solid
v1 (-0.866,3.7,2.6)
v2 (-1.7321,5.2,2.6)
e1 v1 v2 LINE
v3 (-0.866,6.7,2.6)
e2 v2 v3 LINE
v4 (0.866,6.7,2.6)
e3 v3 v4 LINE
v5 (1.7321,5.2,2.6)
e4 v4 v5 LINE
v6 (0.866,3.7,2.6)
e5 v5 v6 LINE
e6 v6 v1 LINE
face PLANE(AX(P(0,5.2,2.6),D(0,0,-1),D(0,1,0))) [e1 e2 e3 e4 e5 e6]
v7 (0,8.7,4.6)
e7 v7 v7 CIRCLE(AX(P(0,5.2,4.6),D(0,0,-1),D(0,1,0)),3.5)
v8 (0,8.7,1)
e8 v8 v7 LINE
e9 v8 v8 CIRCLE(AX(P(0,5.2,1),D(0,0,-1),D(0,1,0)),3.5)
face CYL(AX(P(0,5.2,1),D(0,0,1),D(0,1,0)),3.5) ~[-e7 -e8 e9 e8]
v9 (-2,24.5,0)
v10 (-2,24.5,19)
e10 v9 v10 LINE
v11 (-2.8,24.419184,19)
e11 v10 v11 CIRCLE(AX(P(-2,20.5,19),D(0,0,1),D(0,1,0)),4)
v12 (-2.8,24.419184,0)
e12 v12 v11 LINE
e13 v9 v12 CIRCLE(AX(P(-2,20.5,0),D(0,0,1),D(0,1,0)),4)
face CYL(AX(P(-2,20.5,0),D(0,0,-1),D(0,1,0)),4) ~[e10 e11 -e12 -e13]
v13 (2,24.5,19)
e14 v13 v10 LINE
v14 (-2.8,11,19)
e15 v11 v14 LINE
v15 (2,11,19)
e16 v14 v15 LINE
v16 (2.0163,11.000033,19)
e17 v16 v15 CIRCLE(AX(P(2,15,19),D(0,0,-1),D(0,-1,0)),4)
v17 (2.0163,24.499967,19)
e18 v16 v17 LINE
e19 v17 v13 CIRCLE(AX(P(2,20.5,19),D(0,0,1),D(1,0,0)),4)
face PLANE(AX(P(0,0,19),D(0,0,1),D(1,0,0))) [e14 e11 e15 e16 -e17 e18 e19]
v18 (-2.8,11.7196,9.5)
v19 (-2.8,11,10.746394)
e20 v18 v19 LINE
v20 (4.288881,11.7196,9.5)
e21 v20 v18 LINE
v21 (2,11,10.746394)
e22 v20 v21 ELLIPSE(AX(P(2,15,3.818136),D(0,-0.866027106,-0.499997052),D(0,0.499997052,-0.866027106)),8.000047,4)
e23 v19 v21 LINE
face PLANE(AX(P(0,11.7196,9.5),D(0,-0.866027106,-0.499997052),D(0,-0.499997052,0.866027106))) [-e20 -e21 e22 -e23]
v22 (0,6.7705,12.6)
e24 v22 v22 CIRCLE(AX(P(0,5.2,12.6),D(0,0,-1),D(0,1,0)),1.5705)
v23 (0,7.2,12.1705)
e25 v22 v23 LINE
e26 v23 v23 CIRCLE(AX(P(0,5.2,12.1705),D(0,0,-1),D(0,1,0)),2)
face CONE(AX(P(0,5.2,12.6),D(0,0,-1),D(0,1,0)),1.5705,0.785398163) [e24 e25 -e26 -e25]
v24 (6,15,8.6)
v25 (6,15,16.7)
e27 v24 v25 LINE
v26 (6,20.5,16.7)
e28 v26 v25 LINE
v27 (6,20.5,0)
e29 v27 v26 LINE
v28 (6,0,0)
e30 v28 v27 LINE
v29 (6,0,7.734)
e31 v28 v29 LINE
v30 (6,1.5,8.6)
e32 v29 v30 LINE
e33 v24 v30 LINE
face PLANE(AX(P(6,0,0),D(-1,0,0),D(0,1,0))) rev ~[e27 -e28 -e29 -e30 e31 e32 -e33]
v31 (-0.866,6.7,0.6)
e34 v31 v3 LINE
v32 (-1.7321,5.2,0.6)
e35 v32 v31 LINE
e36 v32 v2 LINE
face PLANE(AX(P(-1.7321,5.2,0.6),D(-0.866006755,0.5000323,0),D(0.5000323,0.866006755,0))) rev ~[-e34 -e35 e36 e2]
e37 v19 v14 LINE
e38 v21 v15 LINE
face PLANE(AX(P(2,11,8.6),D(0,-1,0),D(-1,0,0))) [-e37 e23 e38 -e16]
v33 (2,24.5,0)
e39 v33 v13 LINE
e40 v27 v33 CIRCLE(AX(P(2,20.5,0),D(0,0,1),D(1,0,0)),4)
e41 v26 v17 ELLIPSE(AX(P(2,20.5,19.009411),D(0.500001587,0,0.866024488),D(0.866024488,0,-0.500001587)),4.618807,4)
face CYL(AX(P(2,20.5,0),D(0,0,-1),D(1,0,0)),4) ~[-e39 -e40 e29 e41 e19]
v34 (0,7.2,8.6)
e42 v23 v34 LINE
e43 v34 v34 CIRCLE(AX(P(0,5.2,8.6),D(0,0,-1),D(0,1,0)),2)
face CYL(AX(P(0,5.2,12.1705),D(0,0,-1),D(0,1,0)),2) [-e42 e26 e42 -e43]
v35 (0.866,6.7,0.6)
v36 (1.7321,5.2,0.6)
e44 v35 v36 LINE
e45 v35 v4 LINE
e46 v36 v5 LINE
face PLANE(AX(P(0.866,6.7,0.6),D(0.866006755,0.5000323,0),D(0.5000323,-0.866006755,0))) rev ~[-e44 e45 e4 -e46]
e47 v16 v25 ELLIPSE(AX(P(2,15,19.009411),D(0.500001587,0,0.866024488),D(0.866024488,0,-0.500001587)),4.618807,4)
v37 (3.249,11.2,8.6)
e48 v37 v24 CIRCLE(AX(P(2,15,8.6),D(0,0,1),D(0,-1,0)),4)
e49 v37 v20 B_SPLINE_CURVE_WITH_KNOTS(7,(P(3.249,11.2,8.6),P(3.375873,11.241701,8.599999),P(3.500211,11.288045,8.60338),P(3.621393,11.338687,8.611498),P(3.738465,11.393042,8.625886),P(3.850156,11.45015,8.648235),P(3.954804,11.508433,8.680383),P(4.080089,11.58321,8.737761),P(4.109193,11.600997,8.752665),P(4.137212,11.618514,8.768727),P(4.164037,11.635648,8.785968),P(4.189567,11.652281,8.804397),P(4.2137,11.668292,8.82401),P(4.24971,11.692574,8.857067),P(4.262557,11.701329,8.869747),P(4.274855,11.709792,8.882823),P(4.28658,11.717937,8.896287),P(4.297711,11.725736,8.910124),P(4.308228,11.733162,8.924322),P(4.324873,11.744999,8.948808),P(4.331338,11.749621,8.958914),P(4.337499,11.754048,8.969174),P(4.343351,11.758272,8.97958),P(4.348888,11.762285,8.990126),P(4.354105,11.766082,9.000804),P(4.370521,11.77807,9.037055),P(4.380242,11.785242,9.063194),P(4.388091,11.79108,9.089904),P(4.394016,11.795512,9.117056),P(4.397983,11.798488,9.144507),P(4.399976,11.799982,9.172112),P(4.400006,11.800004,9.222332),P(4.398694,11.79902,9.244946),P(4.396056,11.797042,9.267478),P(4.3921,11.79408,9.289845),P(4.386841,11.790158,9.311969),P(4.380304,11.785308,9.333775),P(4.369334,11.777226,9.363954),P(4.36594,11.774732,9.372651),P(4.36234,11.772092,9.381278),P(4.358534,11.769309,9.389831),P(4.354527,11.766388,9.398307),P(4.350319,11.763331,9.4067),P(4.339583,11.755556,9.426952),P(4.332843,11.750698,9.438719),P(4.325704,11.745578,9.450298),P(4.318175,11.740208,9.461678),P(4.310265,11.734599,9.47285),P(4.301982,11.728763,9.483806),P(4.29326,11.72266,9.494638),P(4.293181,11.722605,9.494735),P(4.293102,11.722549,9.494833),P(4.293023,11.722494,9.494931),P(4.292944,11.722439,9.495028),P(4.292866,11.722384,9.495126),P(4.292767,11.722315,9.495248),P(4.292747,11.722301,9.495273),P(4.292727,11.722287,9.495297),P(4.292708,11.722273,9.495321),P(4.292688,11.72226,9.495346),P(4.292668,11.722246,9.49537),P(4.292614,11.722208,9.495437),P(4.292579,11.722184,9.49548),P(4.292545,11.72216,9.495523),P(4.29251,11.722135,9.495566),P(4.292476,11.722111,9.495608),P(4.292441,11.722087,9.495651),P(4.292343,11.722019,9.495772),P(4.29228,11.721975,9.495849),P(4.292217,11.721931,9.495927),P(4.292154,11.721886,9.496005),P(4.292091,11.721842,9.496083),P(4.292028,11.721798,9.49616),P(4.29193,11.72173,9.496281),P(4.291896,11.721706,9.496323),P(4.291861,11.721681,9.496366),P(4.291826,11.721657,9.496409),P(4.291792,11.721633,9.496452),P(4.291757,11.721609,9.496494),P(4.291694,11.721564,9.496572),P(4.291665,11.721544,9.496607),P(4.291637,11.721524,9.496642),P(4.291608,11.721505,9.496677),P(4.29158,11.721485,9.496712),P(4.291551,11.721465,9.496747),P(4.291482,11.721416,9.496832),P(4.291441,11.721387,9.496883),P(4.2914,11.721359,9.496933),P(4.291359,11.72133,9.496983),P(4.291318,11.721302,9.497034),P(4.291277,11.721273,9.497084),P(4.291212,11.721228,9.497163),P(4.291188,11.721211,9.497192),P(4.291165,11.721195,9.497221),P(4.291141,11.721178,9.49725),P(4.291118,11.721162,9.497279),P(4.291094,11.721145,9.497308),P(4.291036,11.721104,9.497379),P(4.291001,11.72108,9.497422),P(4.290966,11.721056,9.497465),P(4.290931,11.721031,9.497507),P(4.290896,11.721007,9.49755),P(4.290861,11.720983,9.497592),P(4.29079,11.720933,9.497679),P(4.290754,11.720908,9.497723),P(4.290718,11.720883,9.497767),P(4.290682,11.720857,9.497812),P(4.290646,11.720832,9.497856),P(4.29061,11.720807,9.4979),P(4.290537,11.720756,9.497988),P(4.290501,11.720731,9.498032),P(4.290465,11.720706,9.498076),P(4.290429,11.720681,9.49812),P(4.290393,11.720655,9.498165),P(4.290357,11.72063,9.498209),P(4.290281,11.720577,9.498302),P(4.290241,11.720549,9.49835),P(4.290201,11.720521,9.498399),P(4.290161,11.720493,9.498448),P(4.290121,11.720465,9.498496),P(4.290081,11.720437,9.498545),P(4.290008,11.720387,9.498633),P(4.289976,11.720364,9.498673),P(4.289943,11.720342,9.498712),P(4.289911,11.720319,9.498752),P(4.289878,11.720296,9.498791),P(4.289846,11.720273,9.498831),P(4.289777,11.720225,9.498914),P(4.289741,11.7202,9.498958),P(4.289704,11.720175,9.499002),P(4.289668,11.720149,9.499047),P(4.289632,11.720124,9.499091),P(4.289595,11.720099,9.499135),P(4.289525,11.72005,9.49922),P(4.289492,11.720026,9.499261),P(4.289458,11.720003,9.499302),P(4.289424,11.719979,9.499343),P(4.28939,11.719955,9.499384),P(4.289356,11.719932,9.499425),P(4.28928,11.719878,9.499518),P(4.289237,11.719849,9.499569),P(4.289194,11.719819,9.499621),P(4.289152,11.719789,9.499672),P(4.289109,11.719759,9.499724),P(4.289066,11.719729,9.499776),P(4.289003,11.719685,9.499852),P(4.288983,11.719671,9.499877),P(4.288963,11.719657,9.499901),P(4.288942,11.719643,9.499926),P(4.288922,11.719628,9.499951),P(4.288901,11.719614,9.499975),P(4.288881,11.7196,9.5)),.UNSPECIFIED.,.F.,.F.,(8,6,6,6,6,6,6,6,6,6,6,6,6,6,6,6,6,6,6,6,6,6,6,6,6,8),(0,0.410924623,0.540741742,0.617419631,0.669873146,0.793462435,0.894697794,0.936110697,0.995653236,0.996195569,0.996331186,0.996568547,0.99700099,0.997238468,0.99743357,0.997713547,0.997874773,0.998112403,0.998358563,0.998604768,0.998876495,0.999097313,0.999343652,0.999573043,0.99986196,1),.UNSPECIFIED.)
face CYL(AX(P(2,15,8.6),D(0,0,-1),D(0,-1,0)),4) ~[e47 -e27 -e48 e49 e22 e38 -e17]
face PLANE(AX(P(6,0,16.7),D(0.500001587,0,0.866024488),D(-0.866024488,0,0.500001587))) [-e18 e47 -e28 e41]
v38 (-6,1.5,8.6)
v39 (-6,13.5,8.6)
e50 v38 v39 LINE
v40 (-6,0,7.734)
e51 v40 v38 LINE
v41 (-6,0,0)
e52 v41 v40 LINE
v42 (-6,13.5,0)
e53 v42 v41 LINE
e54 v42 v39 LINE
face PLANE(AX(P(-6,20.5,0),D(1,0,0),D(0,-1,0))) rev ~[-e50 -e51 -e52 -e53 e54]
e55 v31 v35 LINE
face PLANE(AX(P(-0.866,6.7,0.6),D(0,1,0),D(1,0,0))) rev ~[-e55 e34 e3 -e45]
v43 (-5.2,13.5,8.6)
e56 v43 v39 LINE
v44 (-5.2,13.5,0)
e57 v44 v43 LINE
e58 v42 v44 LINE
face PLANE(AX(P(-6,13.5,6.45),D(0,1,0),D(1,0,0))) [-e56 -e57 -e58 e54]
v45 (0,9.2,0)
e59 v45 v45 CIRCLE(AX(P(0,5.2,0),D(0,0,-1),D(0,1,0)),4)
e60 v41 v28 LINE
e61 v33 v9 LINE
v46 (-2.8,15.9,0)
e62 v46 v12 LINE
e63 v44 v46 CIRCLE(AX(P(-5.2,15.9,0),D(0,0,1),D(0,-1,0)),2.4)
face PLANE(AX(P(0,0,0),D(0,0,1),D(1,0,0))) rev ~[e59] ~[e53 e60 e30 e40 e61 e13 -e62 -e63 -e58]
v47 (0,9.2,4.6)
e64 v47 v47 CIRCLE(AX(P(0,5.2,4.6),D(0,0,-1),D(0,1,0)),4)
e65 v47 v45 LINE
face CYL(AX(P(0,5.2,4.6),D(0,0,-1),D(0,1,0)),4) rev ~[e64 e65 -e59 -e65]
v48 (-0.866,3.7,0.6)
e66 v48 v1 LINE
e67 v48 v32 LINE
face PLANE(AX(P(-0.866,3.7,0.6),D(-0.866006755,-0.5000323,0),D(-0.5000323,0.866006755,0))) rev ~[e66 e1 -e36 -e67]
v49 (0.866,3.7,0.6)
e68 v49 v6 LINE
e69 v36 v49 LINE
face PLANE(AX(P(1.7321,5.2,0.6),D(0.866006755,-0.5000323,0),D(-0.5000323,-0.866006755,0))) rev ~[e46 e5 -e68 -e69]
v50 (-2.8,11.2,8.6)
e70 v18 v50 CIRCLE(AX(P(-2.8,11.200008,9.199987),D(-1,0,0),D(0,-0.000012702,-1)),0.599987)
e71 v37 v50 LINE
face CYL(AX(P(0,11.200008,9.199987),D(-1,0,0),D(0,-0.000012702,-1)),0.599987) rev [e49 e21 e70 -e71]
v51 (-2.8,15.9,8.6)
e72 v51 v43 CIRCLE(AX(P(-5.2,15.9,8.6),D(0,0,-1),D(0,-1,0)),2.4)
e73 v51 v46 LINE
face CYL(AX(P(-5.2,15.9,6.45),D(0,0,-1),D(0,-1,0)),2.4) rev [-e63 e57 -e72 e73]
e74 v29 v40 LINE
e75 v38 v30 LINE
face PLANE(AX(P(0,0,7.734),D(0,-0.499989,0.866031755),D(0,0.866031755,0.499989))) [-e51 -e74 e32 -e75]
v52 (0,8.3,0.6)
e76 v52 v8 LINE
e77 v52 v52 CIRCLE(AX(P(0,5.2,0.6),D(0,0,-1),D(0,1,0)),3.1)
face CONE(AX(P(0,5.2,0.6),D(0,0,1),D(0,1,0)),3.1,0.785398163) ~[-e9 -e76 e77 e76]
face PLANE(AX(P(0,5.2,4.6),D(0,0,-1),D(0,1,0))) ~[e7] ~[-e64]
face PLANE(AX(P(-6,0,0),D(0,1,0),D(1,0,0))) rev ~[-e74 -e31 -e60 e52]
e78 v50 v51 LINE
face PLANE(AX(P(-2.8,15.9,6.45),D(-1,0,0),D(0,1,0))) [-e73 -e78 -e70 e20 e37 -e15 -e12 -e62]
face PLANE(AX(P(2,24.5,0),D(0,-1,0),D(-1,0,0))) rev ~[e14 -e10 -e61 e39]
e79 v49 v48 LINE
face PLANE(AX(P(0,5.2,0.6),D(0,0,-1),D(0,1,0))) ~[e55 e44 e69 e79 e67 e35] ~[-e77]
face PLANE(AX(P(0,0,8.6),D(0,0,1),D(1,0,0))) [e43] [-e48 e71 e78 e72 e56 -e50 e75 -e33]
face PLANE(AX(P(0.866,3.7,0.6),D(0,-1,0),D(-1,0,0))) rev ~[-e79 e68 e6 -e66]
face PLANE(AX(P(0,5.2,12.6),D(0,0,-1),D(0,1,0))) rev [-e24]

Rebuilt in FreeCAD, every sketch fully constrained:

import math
import FreeCAD as App
import Part
import Sketcher

V = App.Vector
Q = App.Units.Quantity


def add_polygon(sketch, points):
    """Adds a closed chain of lines whose ends are joined by coincident constraints."""
    first, n = sketch.GeometryCount, len(points)
    for a, b in zip(points, points[1:] + points[:1]):
        sketch.addGeometry(Part.LineSegment(App.Vector(*a, 0), App.Vector(*b, 0)), False)
    for i in range(n):
        sketch.addConstraint(Sketcher.Constraint("Coincident", first + i, 2, first + (i + 1) % n, 1))

doc = App.newDocument("Part")
body = doc.addObject("PartDesign::Body", "Body")

# Sketch on XY plane
sketch1 = body.newObject("Sketcher::SketchObject", "Sketch")
sketch1.AttachmentSupport = (doc.getObject("XY_Plane"), [""])
sketch1.MapMode = "FlatFace"
sketch1.addGeometry([
    Part.ArcOfCircle(Part.Circle(V(-2, 20.5, 0), V(0, 0, 1), 4), math.radians(90), math.radians(180)),  # 0
    Part.LineSegment(V(-6, 20.5, 0), V(-6, 0, 0)),  # 1
    Part.LineSegment(V(-6, 0, 0), V(6, 0, 0)),  # 2
    Part.LineSegment(V(6, 0, 0), V(6, 20.5, 0)),  # 3
    Part.ArcOfCircle(Part.Circle(V(2, 20.5, 0), V(0, 0, 1), 4), math.radians(0), math.radians(90)),  # 4
    Part.LineSegment(V(2, 24.5, 0), V(-2, 24.5, 0)),  # 5
], False)
sketch1.addConstraint([
    Sketcher.Constraint("Tangent", 0, 2, 1, 1),
    Sketcher.Constraint("Coincident", 1, 2, 2, 1),
    Sketcher.Constraint("Coincident", 2, 2, 3, 1),
    Sketcher.Constraint("Tangent", 3, 2, 4, 1),
    Sketcher.Constraint("Tangent", 4, 2, 5, 1),
    Sketcher.Constraint("Tangent", 5, 2, 0, 1),
    Sketcher.Constraint("Vertical", 1),
    Sketcher.Constraint("Horizontal", 2),
    Sketcher.Constraint("Vertical", 3),
    Sketcher.Constraint("Horizontal", 5),
    Sketcher.Constraint("Equal", 0, 4),
    Sketcher.Constraint("Symmetric", 1, 2, 2, 2, -1, 1),
    Sketcher.Constraint("Radius", 0, 4.0),
    Sketcher.Constraint("DistanceX", 2, 1, 2, 2, 12.0),
    Sketcher.Constraint("DistanceY", 1, 2, 1, 1, 20.5),
])
pad1 = body.newObject("PartDesign::Pad", "Pad")
pad1.Profile = sketch1
pad1.Length = 19

# Sketch on YZ plane
sketch2 = body.newObject("Sketcher::SketchObject", "Sketch001")
sketch2.AttachmentSupport = (doc.getObject("YZ_Plane"), [""])
sketch2.MapMode = "FlatFace"
add_polygon(sketch2, [(0, 7.734), (1.5, 8.6), (0, 8.6)])  # lines 0-2
sketch2.addConstraint([
    Sketcher.Constraint("Horizontal", 1),
    Sketcher.Constraint("Vertical", 2),
    Sketcher.Constraint("PointOnObject", 1, 2, -2),
    Sketcher.Constraint("Angle", 0, Q("29.9993 deg")),
    Sketcher.Constraint("DistanceX", 1, 2, 1, 1, 1.5),
    Sketcher.Constraint("DistanceY", -1, 1, 0, 2, 8.6),
])
pocket1 = body.newObject("PartDesign::Pocket", "Pocket")
pocket1.Profile = sketch2
pocket1.Length = 12
pocket1.Midplane = True

# Sketch on XY plane
sketch3 = body.newObject("Sketcher::SketchObject", "Sketch002")
sketch3.AttachmentSupport = (doc.getObject("XY_Plane"), [""])
sketch3.MapMode = "FlatFace"
sketch3.AttachmentOffset = App.Placement(V(0, 0, 8.6), App.Rotation())
sketch3.addGeometry([
    Part.LineSegment(V(-2.8, 24.5, 0), V(-6, 24.5, 0)),  # 0
    Part.LineSegment(V(-6, 24.5, 0), V(-6, 0, 0)),  # 1
    Part.LineSegment(V(-6, 0, 0), V(8, 0, 0)),  # 2
    Part.LineSegment(V(8, 0, 0), V(8, 15, 0)),  # 3
    Part.LineSegment(V(8, 15, 0), V(6, 15, 0)),  # 4
    Part.ArcOfCircle(Part.Circle(V(2, 15, 0), V(0, 0, 1), 4), math.radians(-90), math.radians(0)),  # 5
    Part.LineSegment(V(2, 11, 0), V(-2.8, 11, 0)),  # 6
    Part.LineSegment(V(-2.8, 11, 0), V(-2.8, 24.5, 0)),  # 7
], False)
sketch3.addConstraint([
    Sketcher.Constraint("Coincident", 0, 2, 1, 1),
    Sketcher.Constraint("Coincident", 1, 2, 2, 1),
    Sketcher.Constraint("Coincident", 2, 2, 3, 1),
    Sketcher.Constraint("Coincident", 3, 2, 4, 1),
    Sketcher.Constraint("Coincident", 4, 2, 5, 2),
    Sketcher.Constraint("Tangent", 5, 1, 6, 1),
    Sketcher.Constraint("Coincident", 6, 2, 7, 1),
    Sketcher.Constraint("Coincident", 7, 2, 0, 1),
    Sketcher.Constraint("Horizontal", 0),
    Sketcher.Constraint("Vertical", 1),
    Sketcher.Constraint("Horizontal", 2),
    Sketcher.Constraint("Vertical", 3),
    Sketcher.Constraint("Horizontal", 4),
    Sketcher.Constraint("Horizontal", 6),
    Sketcher.Constraint("Vertical", 7),
    Sketcher.Constraint("PointOnObject", 1, 2, -1),
    Sketcher.Constraint("Horizontal", 5, 3, 3, 2),
    Sketcher.Constraint("Radius", 5, 4.0),
    Sketcher.Constraint("DistanceX", 2, 1, 2, 2, 14.0),
    Sketcher.Constraint("DistanceX", 4, 2, 4, 1, 2.0),
    Sketcher.Constraint("DistanceY", 3, 1, 3, 2, 15.0),
    Sketcher.Constraint("DistanceX", 0, 2, 0, 1, 3.2),
    Sketcher.Constraint("DistanceY", 1, 2, 1, 1, 24.5),
    Sketcher.Constraint("DistanceX", -1, 1, 5, 3, 2.0),
])
pocket2 = body.newObject("PartDesign::Pocket", "Pocket001")
pocket2.Profile = sketch3
pocket2.Length = 19.8
pocket2.Reversed = True

# Sketch on YZ plane
sketch4 = body.newObject("Sketcher::SketchObject", "Sketch003")
sketch4.AttachmentSupport = (doc.getObject("YZ_Plane"), [""])
sketch4.MapMode = "FlatFace"
add_polygon(sketch4, [(5.2, 0.6), (5.2, 0), (9.2, 0), (9.2, 4.6), (8.7, 4.6), (8.7, 1), (8.3, 0.6)])  # lines 0-6
sketch4.addGeometry(Part.LineSegment(V(5.2, 4.6, 0), V(5.2, 0, 0)), True)  # axis
sketch4.addConstraint([
    Sketcher.Constraint("Vertical", 0),
    Sketcher.Constraint("Horizontal", 1),
    Sketcher.Constraint("Vertical", 2),
    Sketcher.Constraint("Horizontal", 3),
    Sketcher.Constraint("Vertical", 4),
    Sketcher.Constraint("Horizontal", 6),
    Sketcher.Constraint("Vertical", 7),
    Sketcher.Constraint("Coincident", 7, 2, 0, 2),
    Sketcher.Constraint("PointOnObject", 0, 2, -1),
    Sketcher.Constraint("Horizontal", 3, 2, 7, 1),
    Sketcher.Constraint("DistanceX", 1, 1, 1, 2, 4.0),
    Sketcher.Constraint("Angle", 5, Q("-135 deg")),
    Sketcher.Constraint("DistanceX", 3, 2, 3, 1, 0.5),
    Sketcher.Constraint("DistanceX", 6, 2, 6, 1, 3.1),
    Sketcher.Constraint("DistanceY", 0, 2, 0, 1, 0.6),
    Sketcher.Constraint("DistanceY", 2, 1, 2, 2, 4.6),
    Sketcher.Constraint("DistanceX", -1, 1, 0, 2, 5.2),
])
groove = body.newObject("PartDesign::Groove", "Groove")
groove.Profile = sketch4
groove.ReferenceAxis = (sketch4, ["Axis0"])
groove.Angle = 360

# Sketch on XY plane
sketch5 = body.newObject("Sketcher::SketchObject", "Sketch004")
sketch5.AttachmentSupport = (doc.getObject("XY_Plane"), [""])
sketch5.MapMode = "FlatFace"
sketch5.AttachmentOffset = App.Placement(V(0, 0, 0.6), App.Rotation())
add_polygon(sketch5, [(0.866, 3.7), (-0.866, 3.7), (-1.7321, 5.2), (-0.866, 6.7), (0.866, 6.7), (1.7321, 5.2)])  # lines 0-5
sketch5.addConstraint([
    Sketcher.Constraint("Horizontal", 0),
    Sketcher.Constraint("Horizontal", 3),
    Sketcher.Constraint("Symmetric", 1, 2, 4, 2, -2),
    Sketcher.Constraint("Parallel", 1, 4),
    Sketcher.Constraint("Parallel", 2, 5),
    Sketcher.Constraint("Vertical", 0, 2, 2, 2),
    Sketcher.Constraint("Vertical", 3, 2, 5, 2),
    Sketcher.Constraint("DistanceY", 0, 2, 2, 2, 3.0),
    Sketcher.Constraint("DistanceY", -1, 1, 0, 2, 3.7),
    Sketcher.Constraint("DistanceX", 0, 2, 0, 1, 1.732),
    Sketcher.Constraint("Distance", 1, 1.732),
])
pocket3 = body.newObject("PartDesign::Pocket", "Pocket002")
pocket3.Profile = sketch5
pocket3.Length = 2
pocket3.Reversed = True

# Sketch on XY plane
sketch6 = body.newObject("Sketcher::SketchObject", "Sketch005")
sketch6.AttachmentSupport = (doc.getObject("XY_Plane"), [""])
sketch6.MapMode = "FlatFace"
sketch6.AttachmentOffset = App.Placement(V(0, 0, 6.45), App.Rotation())
sketch6.addGeometry([
    Part.LineSegment(V(-6, 24.5, 0), V(-6, 13.5, 0)),  # 0
    Part.LineSegment(V(-6, 13.5, 0), V(-5.2, 13.5, 0)),  # 1
    Part.ArcOfCircle(Part.Circle(V(-5.2, 15.9, 0), V(0, 0, 1), 2.4), math.radians(-90), math.radians(0)),  # 2
    Part.LineSegment(V(-2.8, 15.9, 0), V(-2.8, 24.5, 0)),  # 3
    Part.LineSegment(V(-2.8, 24.5, 0), V(-6, 24.5, 0)),  # 4
], False)
sketch6.addConstraint([
    Sketcher.Constraint("Coincident", 0, 2, 1, 1),
    Sketcher.Constraint("Tangent", 1, 2, 2, 1),
    Sketcher.Constraint("Tangent", 2, 2, 3, 1),
    Sketcher.Constraint("Coincident", 3, 2, 4, 1),
    Sketcher.Constraint("Coincident", 4, 2, 0, 1),
    Sketcher.Constraint("Vertical", 0),
    Sketcher.Constraint("Horizontal", 1),
    Sketcher.Constraint("Vertical", 3),
    Sketcher.Constraint("Horizontal", 4),
    Sketcher.Constraint("Radius", 2, 2.4),
    Sketcher.Constraint("DistanceY", 0, 2, 0, 1, 11.0),
    Sketcher.Constraint("DistanceX", 1, 1, 1, 2, 0.8),
    Sketcher.Constraint("DistanceX", 0, 2, -1, 1, 6.0),
    Sketcher.Constraint("DistanceY", -1, 1, 2, 3, 15.9),
])
pocket4 = body.newObject("PartDesign::Pocket", "Pocket003")
pocket4.Profile = sketch6
pocket4.Length = 12.9
pocket4.Midplane = True

# Sketch on YZ plane
sketch7 = body.newObject("Sketcher::SketchObject", "Sketch006")
sketch7.AttachmentSupport = (doc.getObject("YZ_Plane"), [""])
sketch7.MapMode = "FlatFace"
sketch7.addGeometry([
    Part.LineSegment(V(11.7196, 9.5, 0), V(10.9, 10.9196, 0)),
    Part.LineSegment(V(10.9, 10.9196, 0), V(10.9, 8.6, 0)),
    Part.LineSegment(V(10.9, 8.6, 0), V(11.2, 8.6, 0)),
    Part.ArcOfCircle(Part.Circle(V(11.2, 9.2, 0), V(0, 0, 1), 0.6), math.radians(-90), math.radians(30.000728)),
], False)
sketch7.addConstraint([
    Sketcher.Constraint("Coincident", 0, 2, 1, 1),
    Sketcher.Constraint("Coincident", 1, 2, 2, 1),
    Sketcher.Constraint("Tangent", 2, 2, 3, 1),
    Sketcher.Constraint("Tangent", 3, 2, 0, 1),
    Sketcher.Constraint("Vertical", 1),
    Sketcher.Constraint("Horizontal", 2),
    Sketcher.Constraint("Radius", 3, 0.6),
    Sketcher.Constraint("Angle", 0, Q("119.9998 deg")),
    Sketcher.Constraint("DistanceX", 2, 1, 2, 2, 0.3),
    Sketcher.Constraint("DistanceX", -1, 1, 3, 3, 11.2),
    Sketcher.Constraint("DistanceY", -1, 1, 3, 3, 9.2),
])
pocket5 = body.newObject("PartDesign::Pocket", "Pocket004")
pocket5.Profile = sketch7
pocket5.Length = 12
pocket5.Midplane = True

# Sketch on XZ plane
sketch8 = body.newObject("Sketcher::SketchObject", "Sketch007")
sketch8.AttachmentSupport = (doc.getObject("XZ_Plane"), [""])
sketch8.MapMode = "FlatFace"
add_polygon(sketch8, [(6, 16.7), (2.0163, 19), (6, 19)])  # lines 0-2
sketch8.addConstraint([
    Sketcher.Constraint("Horizontal", 1),
    Sketcher.Constraint("Vertical", 2),
    Sketcher.Constraint("Angle", 0, Q("150 deg")),
    Sketcher.Constraint("DistanceY", 2, 2, 2, 1, 2.3),
    Sketcher.Constraint("DistanceY", -1, 1, 0, 2, 19.0),
    Sketcher.Constraint("DistanceX", -1, 1, 1, 2, 6.0),
])
pocket6 = body.newObject("PartDesign::Pocket", "Pocket005")
pocket6.Profile = sketch8
pocket6.Length = 49
pocket6.Midplane = True

# Sketch on YZ plane
sketch9 = body.newObject("Sketcher::SketchObject", "Sketch008")
sketch9.AttachmentSupport = (doc.getObject("YZ_Plane"), [""])
sketch9.MapMode = "FlatFace"
add_polygon(sketch9, [(5.2, 12.6), (5.2, 8.6), (7.2, 8.6), (7.2, 12.1705), (6.7705, 12.6)])  # lines 0-4
sketch9.addGeometry(Part.LineSegment(V(5.2, 12.6, 0), V(5.2, 8.6, 0)), True)  # axis
sketch9.addConstraint([
    Sketcher.Constraint("Vertical", 0),
    Sketcher.Constraint("Horizontal", 1),
    Sketcher.Constraint("Vertical", 2),
    Sketcher.Constraint("Horizontal", 4),
    Sketcher.Constraint("Vertical", 5),
    Sketcher.Constraint("Coincident", 5, 1, 4, 2),
    Sketcher.Constraint("Horizontal", 1, 2, 5, 2),
    Sketcher.Constraint("DistanceX", 1, 1, 1, 2, 2.0),
    Sketcher.Constraint("DistanceY", 0, 2, 0, 1, 4.0),
    Sketcher.Constraint("Angle", 3, Q("135 deg")),
    Sketcher.Constraint("DistanceX", -1, 1, 0, 2, 5.2),
    Sketcher.Constraint("DistanceY", -1, 1, 0, 2, 8.6),
    Sketcher.Constraint("DistanceX", 4, 2, 4, 1, 1.5705),
])
revolution = body.newObject("PartDesign::Revolution", "Revolution")
revolution.Profile = sketch9
revolution.ReferenceAxis = (sketch9, ["Axis0"])
revolution.Angle = 360

doc.recompute()
